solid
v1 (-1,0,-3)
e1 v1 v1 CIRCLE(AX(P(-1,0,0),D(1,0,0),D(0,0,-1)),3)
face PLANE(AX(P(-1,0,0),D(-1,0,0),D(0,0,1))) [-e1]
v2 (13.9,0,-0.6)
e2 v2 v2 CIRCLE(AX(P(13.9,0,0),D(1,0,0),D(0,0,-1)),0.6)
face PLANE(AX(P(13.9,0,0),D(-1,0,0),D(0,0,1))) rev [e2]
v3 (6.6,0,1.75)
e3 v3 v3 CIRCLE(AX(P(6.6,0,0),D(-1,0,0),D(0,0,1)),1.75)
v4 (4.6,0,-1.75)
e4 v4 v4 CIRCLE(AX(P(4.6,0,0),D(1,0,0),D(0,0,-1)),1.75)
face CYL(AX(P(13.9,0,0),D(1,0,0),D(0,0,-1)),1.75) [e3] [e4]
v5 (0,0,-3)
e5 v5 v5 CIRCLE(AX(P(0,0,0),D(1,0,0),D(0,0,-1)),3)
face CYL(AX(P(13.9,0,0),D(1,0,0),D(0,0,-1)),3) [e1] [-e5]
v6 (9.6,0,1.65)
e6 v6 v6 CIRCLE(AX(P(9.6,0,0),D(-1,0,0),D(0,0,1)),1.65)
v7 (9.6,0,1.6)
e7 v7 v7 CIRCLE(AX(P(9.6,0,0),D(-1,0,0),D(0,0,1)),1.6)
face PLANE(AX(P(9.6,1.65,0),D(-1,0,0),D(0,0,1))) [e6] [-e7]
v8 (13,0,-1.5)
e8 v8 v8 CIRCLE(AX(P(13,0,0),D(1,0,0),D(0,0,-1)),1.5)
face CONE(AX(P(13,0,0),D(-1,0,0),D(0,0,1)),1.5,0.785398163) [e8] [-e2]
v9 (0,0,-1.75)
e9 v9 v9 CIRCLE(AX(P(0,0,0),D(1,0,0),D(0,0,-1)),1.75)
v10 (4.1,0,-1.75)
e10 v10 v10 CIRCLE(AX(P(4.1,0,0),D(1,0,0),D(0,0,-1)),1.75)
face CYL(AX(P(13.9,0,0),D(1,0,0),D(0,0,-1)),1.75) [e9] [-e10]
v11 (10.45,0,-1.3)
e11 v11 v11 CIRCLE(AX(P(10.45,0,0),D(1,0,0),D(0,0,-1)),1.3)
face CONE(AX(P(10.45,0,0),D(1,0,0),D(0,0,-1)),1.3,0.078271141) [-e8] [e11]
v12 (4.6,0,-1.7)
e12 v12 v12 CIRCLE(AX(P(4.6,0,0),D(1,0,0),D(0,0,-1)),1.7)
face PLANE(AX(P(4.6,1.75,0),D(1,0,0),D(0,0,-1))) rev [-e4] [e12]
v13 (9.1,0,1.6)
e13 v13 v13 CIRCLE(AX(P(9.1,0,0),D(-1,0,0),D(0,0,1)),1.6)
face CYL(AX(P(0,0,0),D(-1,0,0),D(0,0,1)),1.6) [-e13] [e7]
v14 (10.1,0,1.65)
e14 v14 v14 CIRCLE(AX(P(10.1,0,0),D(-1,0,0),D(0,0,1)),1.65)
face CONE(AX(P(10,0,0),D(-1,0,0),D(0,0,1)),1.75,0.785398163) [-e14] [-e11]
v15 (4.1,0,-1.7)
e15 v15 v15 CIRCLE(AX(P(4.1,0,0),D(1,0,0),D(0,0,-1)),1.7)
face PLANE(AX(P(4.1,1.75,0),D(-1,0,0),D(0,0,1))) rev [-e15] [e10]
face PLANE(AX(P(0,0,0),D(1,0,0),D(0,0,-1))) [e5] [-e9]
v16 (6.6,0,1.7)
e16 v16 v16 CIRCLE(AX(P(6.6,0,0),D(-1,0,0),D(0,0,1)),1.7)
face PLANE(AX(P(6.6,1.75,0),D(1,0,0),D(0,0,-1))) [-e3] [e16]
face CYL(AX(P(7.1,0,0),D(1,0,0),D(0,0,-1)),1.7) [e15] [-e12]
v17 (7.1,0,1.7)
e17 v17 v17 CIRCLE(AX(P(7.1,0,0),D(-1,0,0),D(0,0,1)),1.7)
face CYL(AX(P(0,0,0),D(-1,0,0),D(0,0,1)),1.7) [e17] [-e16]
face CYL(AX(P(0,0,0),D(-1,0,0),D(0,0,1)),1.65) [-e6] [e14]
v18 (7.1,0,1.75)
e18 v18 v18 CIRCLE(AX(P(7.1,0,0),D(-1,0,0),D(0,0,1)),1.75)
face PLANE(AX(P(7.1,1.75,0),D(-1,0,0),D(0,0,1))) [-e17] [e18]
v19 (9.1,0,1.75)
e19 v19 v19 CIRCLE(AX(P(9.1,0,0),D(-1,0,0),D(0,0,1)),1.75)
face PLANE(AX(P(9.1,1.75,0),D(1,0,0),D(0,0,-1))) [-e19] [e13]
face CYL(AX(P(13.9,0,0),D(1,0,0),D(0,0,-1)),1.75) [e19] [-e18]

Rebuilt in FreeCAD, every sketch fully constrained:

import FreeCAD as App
import Part
import Sketcher
from FreeCAD import Vector
Q = App.Units.Quantity


def add_polygon(sketch, points):
    """Adds a closed chain of lines whose ends are joined by coincident constraints."""
    first, n = sketch.GeometryCount, len(points)
    for a, b in zip(points, points[1:] + points[:1]):
        sketch.addGeometry(Part.LineSegment(App.Vector(*a, 0), App.Vector(*b, 0)), False)
    for i in range(n):
        sketch.addConstraint(Sketcher.Constraint("Coincident", first + i, 2, first + (i + 1) % n, 1))

doc = App.newDocument("Part")
body = doc.addObject("PartDesign::Body", "Body")

sketch1 = body.newObject("Sketcher::SketchObject", "Sketch")
sketch1.AttachmentSupport = (doc.getObject("XY_Plane"), [""])
sketch1.MapMode = "FlatFace"
add_polygon(sketch1, [(10, 1.8), (0, 1.8), (0, 3), (-1, 3), (-1, 0), (13.9, 0), (13.9, 0.6), (13, 1.5), (10.4, 1.3)])
sketch1.addConstraint([
    Sketcher.Constraint("Horizontal", 0),
    Sketcher.Constraint("Vertical", 1),
    Sketcher.Constraint("Horizontal", 2),
    Sketcher.Constraint("Vertical", 3),
    Sketcher.Constraint("Horizontal", 4),
    Sketcher.Constraint("Vertical", 5),
    Sketcher.Constraint("PointOnObject", 0, 2, -2),
    Sketcher.Constraint("PointOnObject", 3, 2, -1),
    Sketcher.Constraint("Parallel", 6, 8),
    Sketcher.Constraint("DistanceX", 0, 2, 0, 1, 10.0),
    Sketcher.Constraint("DistanceX", 2, 2, 2, 1, 1.0),
    Sketcher.Constraint("DistanceY", 3, 2, 3, 1, 3.0),
    Sketcher.Constraint("Angle", 6, Q("135 deg")),
    Sketcher.Constraint("DistanceX", 4, 1, 4, 2, 14.9),
    Sketcher.Constraint("DistanceY", 5, 1, 5, 2, 0.6),
    Sketcher.Constraint("DistanceX", -1, 1, 6, 2, 13.0),
    Sketcher.Constraint("DistanceY", 1, 1, 1, 2, 1.25),
    Sketcher.Constraint("DistanceY", -1, 1, 7, 2, 1.3),
])
revolution = body.newObject("PartDesign::Revolution", "Revolution")
revolution.Profile = sketch1
revolution.ReferenceAxis = (sketch1, ["H_Axis"])
revolution.Angle = 360

sketch2 = body.newObject("Sketcher::SketchObject", "Sketch001")
sketch2.AttachmentSupport = (doc.getObject("XY_Plane"), [""])
sketch2.MapMode = "FlatFace"
add_polygon(sketch2, [(9.1, 1.75), (9.1, 1.65), (10.1, 1.65), (10.1, 1.75)])
sketch2.addConstraint([
    Sketcher.Constraint("Vertical", 0),
    Sketcher.Constraint("Horizontal", 1),
    Sketcher.Constraint("Vertical", 2),
    Sketcher.Constraint("Horizontal", 3),
    Sketcher.Constraint("DistanceX", 1, 1, 1, 2, 1.0),
    Sketcher.Constraint("DistanceY", 0, 2, 0, 1, 0.1),
    Sketcher.Constraint("DistanceX", -1, 1, 0, 2, 9.1),
    Sketcher.Constraint("DistanceY", -1, 1, 0, 2, 1.65),
])
groove = body.newObject("PartDesign::Groove", "Groove")
groove.Profile = sketch2
groove.ReferenceAxis = (sketch2, ["H_Axis"])
groove.Angle = 360

sketch3 = body.newObject("Sketcher::SketchObject", "Sketch002")
sketch3.AttachmentSupport = (doc.getObject("XY_Plane"), [""])
sketch3.MapMode = "FlatFace"
add_polygon(sketch3, [(9.1, 1.65), (9.1, 1.6), (9.6, 1.6), (9.6, 1.65)])
sketch3.addConstraint([
    Sketcher.Constraint("Vertical", 0),
    Sketcher.Constraint("Horizontal", 1),
    Sketcher.Constraint("Vertical", 2),
    Sketcher.Constraint("Horizontal", 3),
    Sketcher.Constraint("DistanceX", 1, 1, 1, 2, 0.5),
    Sketcher.Constraint("DistanceY", 0, 2, 0, 1, 0.05),
    Sketcher.Constraint("DistanceX", -1, 1, 0, 2, 9.1),
    Sketcher.Constraint("DistanceY", -1, 1, 0, 2, 1.6),
])
groove2 = body.newObject("PartDesign::Groove", "Groove001")
groove2.Profile = sketch3
groove2.ReferenceAxis = (sketch3, ["H_Axis"])
groove2.Angle = 360

sketch4 = body.newObject("Sketcher::SketchObject", "Sketch003")
sketch4.AttachmentSupport = (doc.getObject("XY_Plane"), [""])
sketch4.MapMode = "FlatFace"
add_polygon(sketch4, [(6.6, 1.75), (6.6, 1.7), (7.1, 1.7), (7.1, 1.75)])
sketch4.addConstraint([
    Sketcher.Constraint("Vertical", 0),
    Sketcher.Constraint("Horizontal", 1),
    Sketcher.Constraint("Vertical", 2),
    Sketcher.Constraint("Horizontal", 3),
    Sketcher.Constraint("DistanceX", 1, 1, 1, 2, 0.5),
    Sketcher.Constraint("DistanceY", 0, 2, 0, 1, 0.05),
    Sketcher.Constraint("DistanceX", -1, 1, 0, 2, 6.6),
    Sketcher.Constraint("DistanceY", -1, 1, 0, 2, 1.7),
])
groove3 = body.newObject("PartDesign::Groove", "Groove002")
groove3.Profile = sketch4
groove3.ReferenceAxis = (sketch4, ["H_Axis"])
groove3.Angle = 360

sketch5 = body.newObject("Sketcher::SketchObject", "Sketch004")
sketch5.AttachmentSupport = (doc.getObject("XY_Plane"), [""])
sketch5.MapMode = "FlatFace"
add_polygon(sketch5, [(4.1, 1.75), (4.1, 1.7), (4.6, 1.7), (4.6, 1.75)])
sketch5.addConstraint([
    Sketcher.Constraint("Vertical", 0),
    Sketcher.Constraint("Horizontal", 1),
    Sketcher.Constraint("Vertical", 2),
    Sketcher.Constraint("Horizontal", 3),
    Sketcher.Constraint("DistanceX", 1, 1, 1, 2, 0.5),
    Sketcher.Constraint("DistanceY", 0, 2, 0, 1, 0.05),
    Sketcher.Constraint("DistanceX", -1, 1, 0, 2, 4.1),
    Sketcher.Constraint("DistanceY", -1, 1, 0, 2, 1.7),
])
groove4 = body.newObject("PartDesign::Groove", "Groove003")
groove4.Profile = sketch5
groove4.ReferenceAxis = (sketch5, ["H_Axis"])
groove4.Angle = 360

doc.recompute()
